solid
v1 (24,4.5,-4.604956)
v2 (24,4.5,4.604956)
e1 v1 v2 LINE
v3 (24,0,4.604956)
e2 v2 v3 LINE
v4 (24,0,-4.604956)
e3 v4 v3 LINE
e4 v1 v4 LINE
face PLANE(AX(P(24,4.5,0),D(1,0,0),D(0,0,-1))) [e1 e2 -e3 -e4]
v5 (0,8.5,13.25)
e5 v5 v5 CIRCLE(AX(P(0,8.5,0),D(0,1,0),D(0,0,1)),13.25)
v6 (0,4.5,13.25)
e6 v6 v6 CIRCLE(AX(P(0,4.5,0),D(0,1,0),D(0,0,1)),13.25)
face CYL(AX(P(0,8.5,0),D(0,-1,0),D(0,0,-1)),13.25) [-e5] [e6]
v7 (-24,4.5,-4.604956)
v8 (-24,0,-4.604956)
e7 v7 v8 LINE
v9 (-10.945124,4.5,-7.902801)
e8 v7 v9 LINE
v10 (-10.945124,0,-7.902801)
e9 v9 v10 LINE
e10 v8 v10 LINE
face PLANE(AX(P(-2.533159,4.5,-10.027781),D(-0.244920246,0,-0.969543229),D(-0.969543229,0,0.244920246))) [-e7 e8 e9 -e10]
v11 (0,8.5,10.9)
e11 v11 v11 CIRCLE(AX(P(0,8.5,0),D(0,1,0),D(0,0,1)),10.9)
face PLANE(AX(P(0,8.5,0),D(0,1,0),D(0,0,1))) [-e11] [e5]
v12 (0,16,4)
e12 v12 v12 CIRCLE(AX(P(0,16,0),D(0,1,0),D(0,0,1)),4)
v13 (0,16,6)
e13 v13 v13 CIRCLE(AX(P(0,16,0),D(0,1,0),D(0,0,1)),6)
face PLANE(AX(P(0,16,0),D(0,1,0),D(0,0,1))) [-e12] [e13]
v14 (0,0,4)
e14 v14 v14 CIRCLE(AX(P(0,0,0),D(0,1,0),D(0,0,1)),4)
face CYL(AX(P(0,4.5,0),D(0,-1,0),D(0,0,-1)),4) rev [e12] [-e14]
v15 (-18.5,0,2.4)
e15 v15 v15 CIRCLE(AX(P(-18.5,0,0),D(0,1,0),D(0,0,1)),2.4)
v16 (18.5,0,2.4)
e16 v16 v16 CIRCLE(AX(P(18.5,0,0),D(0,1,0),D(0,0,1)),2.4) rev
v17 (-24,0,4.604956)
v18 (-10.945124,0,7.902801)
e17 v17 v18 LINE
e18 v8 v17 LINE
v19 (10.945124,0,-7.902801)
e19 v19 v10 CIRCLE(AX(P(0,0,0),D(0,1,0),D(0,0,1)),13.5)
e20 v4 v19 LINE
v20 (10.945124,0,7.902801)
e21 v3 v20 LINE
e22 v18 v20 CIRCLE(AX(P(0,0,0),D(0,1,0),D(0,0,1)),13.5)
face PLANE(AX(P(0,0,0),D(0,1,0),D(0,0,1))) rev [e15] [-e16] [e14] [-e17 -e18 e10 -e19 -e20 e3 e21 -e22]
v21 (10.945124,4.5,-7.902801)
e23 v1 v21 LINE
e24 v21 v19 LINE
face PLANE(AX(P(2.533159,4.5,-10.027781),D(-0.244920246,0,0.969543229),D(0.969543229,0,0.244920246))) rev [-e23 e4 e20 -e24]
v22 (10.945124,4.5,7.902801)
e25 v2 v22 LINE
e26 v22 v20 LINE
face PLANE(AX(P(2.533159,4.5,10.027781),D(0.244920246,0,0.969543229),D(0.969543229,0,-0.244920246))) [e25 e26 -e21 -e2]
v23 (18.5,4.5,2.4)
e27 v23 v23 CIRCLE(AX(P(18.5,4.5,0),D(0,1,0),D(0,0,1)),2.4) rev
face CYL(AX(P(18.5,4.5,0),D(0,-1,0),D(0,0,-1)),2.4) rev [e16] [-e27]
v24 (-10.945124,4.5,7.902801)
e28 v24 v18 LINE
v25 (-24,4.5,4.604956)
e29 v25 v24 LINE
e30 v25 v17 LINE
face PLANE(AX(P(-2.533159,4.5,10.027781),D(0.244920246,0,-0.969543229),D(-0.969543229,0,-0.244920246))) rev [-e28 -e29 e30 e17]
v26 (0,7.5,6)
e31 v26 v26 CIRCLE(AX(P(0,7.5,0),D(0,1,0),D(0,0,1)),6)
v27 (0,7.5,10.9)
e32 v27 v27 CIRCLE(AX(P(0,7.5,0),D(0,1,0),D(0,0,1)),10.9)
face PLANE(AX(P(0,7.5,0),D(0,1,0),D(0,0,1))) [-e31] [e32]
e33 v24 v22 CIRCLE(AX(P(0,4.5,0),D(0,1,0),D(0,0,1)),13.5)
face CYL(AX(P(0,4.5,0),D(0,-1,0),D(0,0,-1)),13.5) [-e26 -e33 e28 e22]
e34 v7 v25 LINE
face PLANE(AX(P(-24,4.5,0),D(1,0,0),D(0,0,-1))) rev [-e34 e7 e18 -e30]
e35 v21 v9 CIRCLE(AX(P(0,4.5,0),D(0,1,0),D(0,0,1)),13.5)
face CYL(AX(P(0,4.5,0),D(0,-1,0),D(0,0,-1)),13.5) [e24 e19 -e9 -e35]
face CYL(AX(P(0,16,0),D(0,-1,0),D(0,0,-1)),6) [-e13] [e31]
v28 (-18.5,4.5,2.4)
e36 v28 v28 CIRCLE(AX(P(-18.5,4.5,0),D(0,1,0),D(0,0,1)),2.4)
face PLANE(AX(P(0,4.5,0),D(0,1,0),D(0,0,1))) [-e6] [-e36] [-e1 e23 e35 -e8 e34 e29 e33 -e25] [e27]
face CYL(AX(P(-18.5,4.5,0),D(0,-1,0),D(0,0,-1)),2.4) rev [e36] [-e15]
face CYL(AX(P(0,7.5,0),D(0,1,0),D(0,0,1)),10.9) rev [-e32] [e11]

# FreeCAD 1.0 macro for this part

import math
import FreeCAD as App
import Part
import Sketcher

doc = App.newDocument("Part")
body = doc.addObject("PartDesign::Body", "Body")

sketch1 = body.newObject("Sketcher::SketchObject", "Sketch")
sketch1.AttachmentSupport = (doc.getObject("XZ_Plane"), [""])
sketch1.MapMode = "FlatFace"
sketch1.addGeometry([
    Part.LineSegment(App.Vector(-10.945124, -7.902801, 0), App.Vector(-24, -4.604956, 0)),
    Part.LineSegment(App.Vector(-24, -4.604956, 0), App.Vector(-24, 4.604956, 0)),
    Part.LineSegment(App.Vector(-24, 4.604956, 0), App.Vector(-10.945124, 7.902801, 0)),
    Part.ArcOfCircle(Part.Circle(App.Vector(0, 0, 0), App.Vector(0, 0, 1), 13.5), math.radians(35.830734), math.radians(144.169266)),
    Part.LineSegment(App.Vector(10.945124, 7.902801, 0), App.Vector(24, 4.604956, 0)),
    Part.LineSegment(App.Vector(24, 4.604956, 0), App.Vector(24, -4.604956, 0)),
    Part.LineSegment(App.Vector(24, -4.604956, 0), App.Vector(10.945124, -7.902801, 0)),
    Part.ArcOfCircle(Part.Circle(App.Vector(0, 0, 0), App.Vector(0, 0, 1), 13.5), math.radians(-144.169266), math.radians(-35.830734)),
    Part.Circle(App.Vector(-18.5, 0, 0), App.Vector(0, 0, 1), 2.4),
    Part.Circle(App.Vector(0, 0, 0), App.Vector(0, 0, 1), 4),
    Part.Circle(App.Vector(18.5, 0, 0), App.Vector(0, 0, 1), 2.4),
], False)
sketch1.addConstraint([
    Sketcher.Constraint("Coincident", 0, 2, 1, 1),
    Sketcher.Constraint("Coincident", 1, 2, 2, 1),
    Sketcher.Constraint("Coincident", 2, 2, 3, 2),
    Sketcher.Constraint("Coincident", 3, 1, 4, 1),
    Sketcher.Constraint("Coincident", 4, 2, 5, 1),
    Sketcher.Constraint("Coincident", 5, 2, 6, 1),
    Sketcher.Constraint("Coincident", 6, 2, 7, 2),
    Sketcher.Constraint("Coincident", 7, 1, 0, 1),
    Sketcher.Constraint("Vertical", 1),
    Sketcher.Constraint("Vertical", 5),
    Sketcher.Constraint("Coincident", 3, 3, -1, 1),
    Sketcher.Constraint("Coincident", 7, 3, -1, 1),
    Sketcher.Constraint("Coincident", 9, 3, -1, 1),
    Sketcher.Constraint("Equal", 3, 7),
    Sketcher.Constraint("Equal", 8, 10),
    Sketcher.Constraint("Symmetric", 8, 3, 10, 3, -1, 1),
    Sketcher.Constraint("Symmetric", 0, 2, 4, 2, -1, 1),
    Sketcher.Constraint("PointOnObject", 8, 3, -1),
    Sketcher.Constraint("Parallel", 0, 4),
    Sketcher.Constraint("Parallel", 2, 6),
    Sketcher.Constraint("Horizontal", 2, 2, 3, 1),
    Sketcher.Constraint("Horizontal", 1, 2, 4, 2),
    Sketcher.Constraint("Horizontal", 0, 2, 5, 2),
    Sketcher.Constraint("Diameter", 9, 8.0),
    Sketcher.Constraint("Diameter", 8, 4.8),
    Sketcher.Constraint("Radius", 3, 13.5),
    Sketcher.Constraint("DistanceX", 0, 2, -1, 1, 24.0),
    Sketcher.Constraint("DistanceX", 8, 3, 10, 3, 37.0),
    Sketcher.Constraint("DistanceY", 1, 1, 1, 2, 9.209911),
    Sketcher.Constraint("DistanceY", -1, 1, 2, 2, 7.902801),
])
pad1 = body.newObject("PartDesign::Pad", "Pad")
pad1.Profile = sketch1
pad1.Length = 4.5
pad1.Reversed = True

sketch2 = body.newObject("Sketcher::SketchObject", "Sketch001")
sketch2.AttachmentSupport = (doc.getObject("XZ_Plane"), [""])
sketch2.MapMode = "FlatFace"
sketch2.AttachmentOffset = App.Placement(App.Vector(0, 0, -4.5), App.Rotation())
sketch2.addGeometry([
    Part.Circle(App.Vector(0, 0, 0), App.Vector(0, 0, 1), 13.25),
    Part.Circle(App.Vector(0, 0, 0), App.Vector(0, 0, 1), 4),
], False)
sketch2.addConstraint([
    Sketcher.Constraint("Coincident", 0, 3, -1, 1),
    Sketcher.Constraint("Coincident", 1, 3, -1, 1),
    Sketcher.Constraint("Diameter", 1, 8.0),
    Sketcher.Constraint("Diameter", 0, 26.5),
])
pad2 = body.newObject("PartDesign::Pad", "Pad001")
pad2.Profile = sketch2
pad2.Length = 4
pad2.Reversed = True

sketch3 = body.newObject("Sketcher::SketchObject", "Sketch002")
sketch3.AttachmentSupport = (doc.getObject("XZ_Plane"), [""])
sketch3.MapMode = "FlatFace"
sketch3.AttachmentOffset = App.Placement(App.Vector(0, 0, -8.5), App.Rotation())
sketch3.addGeometry([
    Part.Circle(App.Vector(0, 0, 0), App.Vector(0, 0, 1), 6),
    Part.Circle(App.Vector(0, 0, 0), App.Vector(0, 0, 1), 4),
], False)
sketch3.addConstraint([
    Sketcher.Constraint("Coincident", 0, 3, -1, 1),
    Sketcher.Constraint("Coincident", 1, 3, -1, 1),
    Sketcher.Constraint("Diameter", 0, 12.0),
    Sketcher.Constraint("Diameter", 1, 8.0),
])
pad3 = body.newObject("PartDesign::Pad", "Pad002")
pad3.Profile = sketch3
pad3.Length = 7.5
pad3.Reversed = True

sketch4 = body.newObject("Sketcher::SketchObject", "Sketch003")
sketch4.AttachmentSupport = (doc.getObject("XZ_Plane"), [""])
sketch4.MapMode = "FlatFace"
sketch4.AttachmentOffset = App.Placement(App.Vector(0, 0, -7.5), App.Rotation())
sketch4.addGeometry([
    Part.Circle(App.Vector(0, 0, 0), App.Vector(0, 0, 1), 10.9),
    Part.Circle(App.Vector(0, 0, 0), App.Vector(0, 0, 1), 6),
], False)
sketch4.addConstraint([
    Sketcher.Constraint("Coincident", 0, 3, -1, 1),
    Sketcher.Constraint("Coincident", 1, 3, -1, 1),
    Sketcher.Constraint("Diameter", 1, 12.0),
    Sketcher.Constraint("Diameter", 0, 21.8),
])
pocket1 = body.newObject("PartDesign::Pocket", "Pocket")
pocket1.Profile = sketch4
pocket1.Length = 1

doc.recompute()
